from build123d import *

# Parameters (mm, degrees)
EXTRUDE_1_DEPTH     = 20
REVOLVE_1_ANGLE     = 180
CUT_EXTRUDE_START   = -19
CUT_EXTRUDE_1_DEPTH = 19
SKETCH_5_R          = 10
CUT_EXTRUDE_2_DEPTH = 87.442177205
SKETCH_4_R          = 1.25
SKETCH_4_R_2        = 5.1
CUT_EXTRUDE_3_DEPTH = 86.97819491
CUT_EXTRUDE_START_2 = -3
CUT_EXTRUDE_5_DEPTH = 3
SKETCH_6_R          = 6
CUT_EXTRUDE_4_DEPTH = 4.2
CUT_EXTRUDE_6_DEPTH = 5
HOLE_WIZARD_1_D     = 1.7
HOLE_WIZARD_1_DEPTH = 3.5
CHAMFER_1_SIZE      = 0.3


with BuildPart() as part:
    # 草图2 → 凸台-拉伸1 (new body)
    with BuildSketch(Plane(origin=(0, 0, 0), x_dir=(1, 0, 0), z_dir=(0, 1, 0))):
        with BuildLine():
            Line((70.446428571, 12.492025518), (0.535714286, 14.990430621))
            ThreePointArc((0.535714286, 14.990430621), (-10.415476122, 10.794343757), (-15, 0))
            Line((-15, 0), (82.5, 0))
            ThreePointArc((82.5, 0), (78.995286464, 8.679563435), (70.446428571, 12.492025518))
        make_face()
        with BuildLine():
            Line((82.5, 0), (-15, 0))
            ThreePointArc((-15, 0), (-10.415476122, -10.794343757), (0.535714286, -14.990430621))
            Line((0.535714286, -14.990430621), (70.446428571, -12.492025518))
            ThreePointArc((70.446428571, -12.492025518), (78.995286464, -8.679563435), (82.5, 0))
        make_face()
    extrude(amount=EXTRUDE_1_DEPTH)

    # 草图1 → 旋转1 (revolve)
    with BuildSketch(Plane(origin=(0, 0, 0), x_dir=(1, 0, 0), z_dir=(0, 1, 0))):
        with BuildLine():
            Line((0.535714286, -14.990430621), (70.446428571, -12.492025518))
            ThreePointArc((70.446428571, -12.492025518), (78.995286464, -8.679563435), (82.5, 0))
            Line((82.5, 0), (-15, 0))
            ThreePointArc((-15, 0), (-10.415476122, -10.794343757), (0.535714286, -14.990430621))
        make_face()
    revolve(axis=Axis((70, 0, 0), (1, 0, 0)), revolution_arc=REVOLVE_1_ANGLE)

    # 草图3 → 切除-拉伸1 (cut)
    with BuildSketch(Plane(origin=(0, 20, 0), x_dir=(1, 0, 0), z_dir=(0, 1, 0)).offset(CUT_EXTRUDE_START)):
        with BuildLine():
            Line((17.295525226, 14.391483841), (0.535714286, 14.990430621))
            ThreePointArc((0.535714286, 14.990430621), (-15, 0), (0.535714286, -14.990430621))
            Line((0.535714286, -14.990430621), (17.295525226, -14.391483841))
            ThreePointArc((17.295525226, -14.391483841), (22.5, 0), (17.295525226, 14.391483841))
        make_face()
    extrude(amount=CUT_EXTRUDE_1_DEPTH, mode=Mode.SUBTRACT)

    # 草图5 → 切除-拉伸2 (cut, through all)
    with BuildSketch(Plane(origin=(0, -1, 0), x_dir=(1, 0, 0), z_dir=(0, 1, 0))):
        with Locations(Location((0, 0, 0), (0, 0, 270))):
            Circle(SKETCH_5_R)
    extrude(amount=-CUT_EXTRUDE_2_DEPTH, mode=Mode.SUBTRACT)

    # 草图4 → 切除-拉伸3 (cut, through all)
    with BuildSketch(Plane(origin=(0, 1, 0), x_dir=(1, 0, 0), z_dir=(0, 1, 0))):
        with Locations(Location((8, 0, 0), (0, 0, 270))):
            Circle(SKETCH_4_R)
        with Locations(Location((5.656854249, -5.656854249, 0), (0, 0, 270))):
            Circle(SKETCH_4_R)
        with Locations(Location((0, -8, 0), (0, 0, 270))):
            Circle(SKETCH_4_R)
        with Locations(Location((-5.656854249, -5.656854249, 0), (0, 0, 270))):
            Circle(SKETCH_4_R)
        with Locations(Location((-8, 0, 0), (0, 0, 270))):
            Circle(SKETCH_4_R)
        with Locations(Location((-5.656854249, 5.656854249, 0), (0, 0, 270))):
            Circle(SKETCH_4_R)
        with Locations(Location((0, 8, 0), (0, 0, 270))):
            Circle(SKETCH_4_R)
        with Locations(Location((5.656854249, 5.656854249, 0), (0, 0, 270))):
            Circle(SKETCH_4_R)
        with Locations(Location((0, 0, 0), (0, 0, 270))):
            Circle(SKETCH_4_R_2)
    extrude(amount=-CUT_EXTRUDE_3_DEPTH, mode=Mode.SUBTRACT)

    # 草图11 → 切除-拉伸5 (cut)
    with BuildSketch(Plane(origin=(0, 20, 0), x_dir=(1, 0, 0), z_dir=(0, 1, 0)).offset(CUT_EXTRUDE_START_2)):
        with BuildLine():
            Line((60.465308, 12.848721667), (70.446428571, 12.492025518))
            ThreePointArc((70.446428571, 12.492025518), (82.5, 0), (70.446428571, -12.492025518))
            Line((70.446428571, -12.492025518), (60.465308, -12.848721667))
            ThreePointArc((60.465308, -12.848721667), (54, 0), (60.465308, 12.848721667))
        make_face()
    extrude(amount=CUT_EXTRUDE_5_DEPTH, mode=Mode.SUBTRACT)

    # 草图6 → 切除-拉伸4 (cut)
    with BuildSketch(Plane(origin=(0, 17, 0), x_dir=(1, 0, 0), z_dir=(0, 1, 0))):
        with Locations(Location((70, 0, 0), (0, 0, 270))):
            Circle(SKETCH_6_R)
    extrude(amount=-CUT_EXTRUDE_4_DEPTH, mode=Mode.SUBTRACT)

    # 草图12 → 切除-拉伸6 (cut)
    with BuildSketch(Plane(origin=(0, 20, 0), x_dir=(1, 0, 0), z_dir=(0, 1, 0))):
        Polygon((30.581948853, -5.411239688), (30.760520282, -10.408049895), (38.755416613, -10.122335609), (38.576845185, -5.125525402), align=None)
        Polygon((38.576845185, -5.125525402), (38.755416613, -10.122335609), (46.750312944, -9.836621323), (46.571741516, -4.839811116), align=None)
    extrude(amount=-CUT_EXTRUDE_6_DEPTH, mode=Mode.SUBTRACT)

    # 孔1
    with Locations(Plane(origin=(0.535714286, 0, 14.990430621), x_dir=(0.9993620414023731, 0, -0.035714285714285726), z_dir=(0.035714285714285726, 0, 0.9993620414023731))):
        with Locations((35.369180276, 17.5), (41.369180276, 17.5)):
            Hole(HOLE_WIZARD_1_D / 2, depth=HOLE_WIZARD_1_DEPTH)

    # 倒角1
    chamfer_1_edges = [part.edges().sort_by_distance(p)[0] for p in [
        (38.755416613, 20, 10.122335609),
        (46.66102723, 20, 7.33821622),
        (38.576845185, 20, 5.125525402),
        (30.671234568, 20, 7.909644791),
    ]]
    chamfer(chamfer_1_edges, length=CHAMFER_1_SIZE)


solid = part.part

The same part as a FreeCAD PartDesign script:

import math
import FreeCAD as App
import Part
import Sketcher

V = App.Vector
Q = App.Units.Quantity


def edges_at(feature, points):
    """Names of the edges that pass closest to the given points."""
    edges = feature.Shape.Edges
    near = lambda p: min(range(len(edges)), key=lambda i: edges[i].distToShape(Part.Vertex(*p))[0])
    return sorted({f"Edge{near(p) + 1}" for p in points})

doc = App.newDocument("Part")
body = doc.addObject("PartDesign::Body", "Body")

# Sketch on XZ plane
sketch1 = doc.addObject("Sketcher::SketchObject", "Sketch")
body.addObject(sketch1)
sketch1.AttachmentSupport = (doc.XZ_Plane, [""])
sketch1.MapMode = "FlatFace"
sketch1.addGeometry([
    Part.LineSegment(V(70, -12, 0), V(1, -15, 0)),  # 0
    Part.ArcOfCircle(Part.Circle(V(0, 0, 0), V(0, 0, 1), 15), math.radians(-180), math.radians(-88)),  # 1
    Part.ArcOfCircle(Part.Circle(V(0, 0, 0), V(0, 0, 1), 15), math.radians(88), math.radians(180)),  # 2
    Part.LineSegment(V(1, 15, 0), V(70, 12, 0)),  # 3
    Part.ArcOfCircle(Part.Circle(V(70, 0, 0), V(0, 0, 1), 13), math.radians(0), math.radians(88)),  # 4
    Part.ArcOfCircle(Part.Circle(V(70, 0, 0), V(0, 0, 1), 13), math.radians(-88), math.radians(0)),  # 5
], False)
sketch1.addConstraint([
    Sketcher.Constraint("Tangent", 0, 2, 1, 2),
    Sketcher.Constraint("Tangent", 1, 1, 2, 2),
    Sketcher.Constraint("Tangent", 2, 1, 3, 1),
    Sketcher.Constraint("Tangent", 3, 2, 4, 2),
    Sketcher.Constraint("Tangent", 4, 1, 5, 2),
    Sketcher.Constraint("Tangent", 5, 1, 0, 1),
    Sketcher.Constraint("Coincident", 1, 3, -1, 1),
    Sketcher.Constraint("Equal", 1, 2),
    Sketcher.Constraint("Equal", 4, 5),
    Sketcher.Constraint("PointOnObject", 4, 3, -1),
    Sketcher.Constraint("PointOnObject", 1, 1, -1),
    Sketcher.Constraint("PointOnObject", 4, 1, -1),
    Sketcher.Constraint("Radius", 1, Q("15 mm")),
    Sketcher.Constraint("Radius", 4, Q("12.5 mm")),
    Sketcher.Constraint("DistanceX", -1, 1, 4, 3, Q("70 mm")),
])
pad1 = doc.addObject("PartDesign::Pad", "Pad")
body.addObject(pad1)
pad1.Profile = sketch1
pad1.Length = 20
pad1.Reversed = True

# Sketch on XZ plane
sketch2 = doc.addObject("Sketcher::SketchObject", "Sketch001")
body.addObject(sketch2)
sketch2.AttachmentSupport = (doc.XZ_Plane, [""])
sketch2.MapMode = "FlatFace"
sketch2.addGeometry([
    Part.LineSegment(V(1, 15, 0), V(70, 12, 0)),
    Part.ArcOfCircle(Part.Circle(V(70, 0, 0), V(0, 0, 1), 13), math.radians(0), math.radians(88)),
    Part.LineSegment(V(82, 0, 0), V(-15, 0, 0)),
    Part.ArcOfCircle(Part.Circle(V(0, 0, 0), V(0, 0, 1), 15), math.radians(88), math.radians(180)),
], False)
sketch2.addConstraint([
    Sketcher.Constraint("Tangent", 0, 2, 1, 2),
    Sketcher.Constraint("Coincident", 1, 1, 2, 1),
    Sketcher.Constraint("Coincident", 2, 2, 3, 2),
    Sketcher.Constraint("Tangent", 3, 1, 0, 1),
    Sketcher.Constraint("Horizontal", 2),
    Sketcher.Constraint("Coincident", 3, 3, -1, 1),
    Sketcher.Constraint("PointOnObject", 1, 3, -1),
    Sketcher.Constraint("PointOnObject", 1, 1, -1),
    Sketcher.Constraint("Radius", 3, Q("15 mm")),
    Sketcher.Constraint("Radius", 1, Q("12.5 mm")),
    Sketcher.Constraint("DistanceX", 2, 2, 2, 1, Q("97.5 mm")),
])
revolution = doc.addObject("PartDesign::Revolution", "Revolution")
body.addObject(revolution)
revolution.Profile = sketch2
revolution.ReferenceAxis = (sketch2, ["H_Axis"])
revolution.Angle = 180

# Sketch on XZ plane
sketch3 = doc.addObject("Sketcher::SketchObject", "Sketch002")
body.addObject(sketch3)
sketch3.AttachmentSupport = (doc.XZ_Plane, [""])
sketch3.MapMode = "FlatFace"
sketch3.AttachmentOffset = App.Placement(V(0, 0, -1), App.Rotation())
sketch3.addGeometry([
    Part.LineSegment(V(17, -14, 0), V(1, -15, 0)),
    Part.ArcOfCircle(Part.Circle(V(0, 0, 0), V(0, 0, 1), 15), math.radians(88), math.radians(272)),
    Part.LineSegment(V(1, 15, 0), V(17, 14, 0)),
    Part.ArcOfCircle(Part.Circle(V(0, 0, 0), V(0, 0, 1), 22), math.radians(-40), math.radians(40)),
], False)
sketch3.addConstraint([
    Sketcher.Constraint("Tangent", 0, 2, 1, 2),
    Sketcher.Constraint("Tangent", 1, 1, 2, 1),
    Sketcher.Constraint("Coincident", 2, 2, 3, 2),
    Sketcher.Constraint("Coincident", 3, 1, 0, 1),
    Sketcher.Constraint("Coincident", 1, 3, -1, 1),
    Sketcher.Constraint("Coincident", 3, 3, -1, 1),
    Sketcher.Constraint("Vertical", 0, 2, 1, 1),
    Sketcher.Constraint("Radius", 1, Q("15 mm")),
    Sketcher.Constraint("Radius", 3, Q("22.5 mm")),
    Sketcher.Constraint("DistanceY", 0, 2, -1, 1, Q("14.990431 mm")),
])
pocket1 = doc.addObject("PartDesign::Pocket", "Pocket")
body.addObject(pocket1)
pocket1.Profile = sketch3
pocket1.Length = 19

# Sketch on XZ plane
sketch4 = doc.addObject("Sketcher::SketchObject", "Sketch003")
body.addObject(sketch4)
sketch4.AttachmentSupport = (doc.XZ_Plane, [""])
sketch4.MapMode = "FlatFace"
sketch4.AttachmentOffset = App.Placement(V(0, 0, 1), App.Rotation())
sketch4.addGeometry(Part.Circle(V(0, 0, 0), V(0, 0, 1), 10), False)
sketch4.addConstraint([
    Sketcher.Constraint("Coincident", 0, 3, -1, 1),
    Sketcher.Constraint("Diameter", 0, Q("20 mm")),
])
pocket2 = doc.addObject("PartDesign::Pocket", "Pocket001")
body.addObject(pocket2)
pocket2.Profile = sketch4
pocket2.Type = "ThroughAll"
pocket2.Reversed = True

# Sketch on XZ plane
sketch5 = doc.addObject("Sketcher::SketchObject", "Sketch004")
body.addObject(sketch5)
sketch5.AttachmentSupport = (doc.XZ_Plane, [""])
sketch5.MapMode = "FlatFace"
sketch5.AttachmentOffset = App.Placement(V(0, 0, -1), App.Rotation())
sketch5.addGeometry([
    Part.Circle(V(8, 0, 0), V(0, 0, 1), 1.2),  # 0
    Part.Circle(V(5.7, 5.7, 0), V(0, 0, 1), 1.2),  # 1
    Part.Circle(V(0, 8, 0), V(0, 0, 1), 1.2),  # 2
    Part.Circle(V(-5.7, 5.7, 0), V(0, 0, 1), 1.2),  # 3
    Part.Circle(V(-8, 0, 0), V(0, 0, 1), 1.2),  # 4
    Part.Circle(V(-5.7, -5.7, 0), V(0, 0, 1), 1.2),  # 5
    Part.Circle(V(0, -8, 0), V(0, 0, 1), 1.2),  # 6
    Part.Circle(V(5.7, -5.7, 0), V(0, 0, 1), 1.2),  # 7
    Part.Circle(V(0, 0, 0), V(0, 0, 1), 5.1),  # 8
], False)
sketch5.addConstraint([
    Sketcher.Constraint("Coincident", 8, 3, -1, 1),
    Sketcher.Constraint("Equal", 0, 1),
    Sketcher.Constraint("Equal", 1, 2),
    Sketcher.Constraint("Equal", 2, 3),
    Sketcher.Constraint("Equal", 3, 4),
    Sketcher.Constraint("Equal", 4, 5),
    Sketcher.Constraint("Equal", 5, 6),
    Sketcher.Constraint("Equal", 6, 7),
    Sketcher.Constraint("Symmetric", 0, 3, 4, 3, -1, 1),
    Sketcher.Constraint("Symmetric", 1, 3, 5, 3, -1, 1),
    Sketcher.Constraint("Symmetric", 2, 3, 6, 3, -1, 1),
    Sketcher.Constraint("Symmetric", 3, 3, 7, 3, -1, 1),
    Sketcher.Constraint("Symmetric", 1, 3, 3, 3, -2),
    Sketcher.Constraint("PointOnObject", 0, 3, -1),
    Sketcher.Constraint("PointOnObject", 2, 3, -2),
    Sketcher.Constraint("Diameter", 0, Q("2.5 mm")),
    Sketcher.Constraint("Diameter", 8, Q("10.2 mm")),
    Sketcher.Constraint("DistanceX", -1, 1, 0, 3, Q("8 mm")),
    Sketcher.Constraint("DistanceY", -1, 1, 2, 3, Q("8 mm")),
    Sketcher.Constraint("DistanceX", 3, 3, 1, 3, Q("11.313708 mm")),
    Sketcher.Constraint("DistanceY", 5, 3, 3, 3, Q("11.313708 mm")),
])
pocket3 = doc.addObject("PartDesign::Pocket", "Pocket002")
body.addObject(pocket3)
pocket3.Profile = sketch5
pocket3.Type = "ThroughAll"
pocket3.Reversed = True

# Sketch on XZ plane
sketch6 = doc.addObject("Sketcher::SketchObject", "Sketch005")
body.addObject(sketch6)
sketch6.AttachmentSupport = (doc.XZ_Plane, [""])
sketch6.MapMode = "FlatFace"
sketch6.AttachmentOffset = App.Placement(V(0, 0, -17), App.Rotation())
sketch6.addGeometry([
    Part.LineSegment(V(70, -12, 0), V(60, -13, 0)),
    Part.ArcOfCircle(Part.Circle(V(70, 0, 0), V(0, 0, 1), 16), math.radians(127), math.radians(233)),
    Part.LineSegment(V(60, 13, 0), V(70, 12, 0)),
    Part.ArcOfCircle(Part.Circle(V(70, 0, 0), V(0, 0, 1), 12), math.radians(-88), math.radians(88)),
], False)
sketch6.addConstraint([
    Sketcher.Constraint("Coincident", 0, 2, 1, 2),
    Sketcher.Constraint("Coincident", 1, 1, 2, 1),
    Sketcher.Constraint("Tangent", 2, 2, 3, 2),
    Sketcher.Constraint("Tangent", 3, 1, 0, 1),
    Sketcher.Constraint("Coincident", 3, 3, 1, 3),
    Sketcher.Constraint("Symmetric", 0, 2, 1, 1, -1),
    Sketcher.Constraint("Radius", 1, Q("16 mm")),
    Sketcher.Constraint("Radius", 3, Q("12.5 mm")),
    Sketcher.Constraint("DistanceX", -1, 1, 1, 3, Q("70 mm")),
    Sketcher.Constraint("DistanceY", 0, 2, -1, 1, Q("12.848722 mm")),
])
pocket4 = doc.addObject("PartDesign::Pocket", "Pocket003")
body.addObject(pocket4)
pocket4.Profile = sketch6
pocket4.Length = 3

# Sketch on XZ plane
sketch7 = doc.addObject("Sketcher::SketchObject", "Sketch006")
body.addObject(sketch7)
sketch7.AttachmentSupport = (doc.XZ_Plane, [""])
sketch7.MapMode = "FlatFace"
sketch7.AttachmentOffset = App.Placement(V(0, 0, -17), App.Rotation())
sketch7.addGeometry(Part.Circle(V(70, 0, 0), V(0, 0, 1), 6), False)
sketch7.addConstraint([
    Sketcher.Constraint("PointOnObject", 0, 3, -1),
    Sketcher.Constraint("Diameter", 0, Q("12 mm")),
    Sketcher.Constraint("DistanceX", -1, 1, 0, 3, Q("70 mm")),
])
pocket5 = doc.addObject("PartDesign::Pocket", "Pocket004")
body.addObject(pocket5)
pocket5.Profile = sketch7
pocket5.Length = 4.2
pocket5.Reversed = True

# Sketch on XZ plane
sketch8 = doc.addObject("Sketcher::SketchObject", "Sketch007")
body.addObject(sketch8)
sketch8.AttachmentSupport = (doc.XZ_Plane, [""])
sketch8.MapMode = "FlatFace"
sketch8.AttachmentOffset = App.Placement(V(0, 0, -20), App.Rotation())
sketch8.addGeometry([
    Part.LineSegment(V(30.6, 5.4, 0), V(30.8, 10.4, 0)),  # 0
    Part.LineSegment(V(30.8, 10.4, 0), V(46.8, 9.8, 0)),  # 1
    Part.LineSegment(V(46.8, 9.8, 0), V(46.6, 4.8, 0)),  # 2
    Part.LineSegment(V(46.6, 4.8, 0), V(38.6, 5.1, 0)),  # 3
    Part.LineSegment(V(38.6, 5.1, 0), V(30.6, 5.4, 0)),  # 4
], False)
sketch8.addConstraint([
    Sketcher.Constraint("Coincident", 0, 2, 1, 1),
    Sketcher.Constraint("Coincident", 1, 2, 2, 1),
    Sketcher.Constraint("Coincident", 2, 2, 3, 1),
    Sketcher.Constraint("Coincident", 3, 2, 4, 1),
    Sketcher.Constraint("Coincident", 4, 2, 0, 1),
    Sketcher.Constraint("Perpendicular", 0, 1),
    Sketcher.Constraint("Perpendicular", 1, 2),
    Sketcher.Constraint("Perpendicular", 2, 3),
    Sketcher.Constraint("Parallel", 3, 4),
    Sketcher.Constraint("Equal", 3, 4),
    Sketcher.Constraint("Distance", 0, Q("5 mm")),
    Sketcher.Constraint("Distance", 1, Q("16 mm")),
    Sketcher.Constraint("DistanceX", -1, 1, 0, 2, Q("30.76052 mm")),
    Sketcher.Constraint("DistanceY", -1, 1, 0, 2, Q("10.40805 mm")),
    Sketcher.Constraint("DistanceY", -1, 1, 1, 2, Q("9.836621 mm")),
])
pocket6 = doc.addObject("PartDesign::Pocket", "Pocket005")
body.addObject(pocket6)
pocket6.Profile = sketch8
pocket6.Length = 5
pocket6.Reversed = True

# Sketch on an angled plane
sketch9 = doc.addObject("Sketcher::SketchObject", "Sketch008")
body.addObject(sketch9)
sketch9.Placement = App.Placement(V(0.535714, 0, 14.990431), App.Rotation(V(0.999362041, 0, -0.035714286), V(0, 0.999999999, 0), V(0.035714286, 0, 0.999362041), "ZXY"))
sketch9.addGeometry([
    Part.Circle(V(35.4, 17.5, 0), V(0, 0, 1), 0.8),
    Part.Circle(V(41.4, 17.5, 0), V(0, 0, 1), 0.8),
], False)
sketch9.addConstraint([
    Sketcher.Constraint("Equal", 0, 1),
    Sketcher.Constraint("Horizontal", 0, 3, 1, 3),
    Sketcher.Constraint("Diameter", 0, Q("1.7 mm")),
    Sketcher.Constraint("DistanceX", 0, 3, 1, 3, Q("6 mm")),
    Sketcher.Constraint("DistanceY", -1, 1, 0, 3, Q("17.5 mm")),
    Sketcher.Constraint("DistanceX", -1, 1, 0, 3, Q("35.36918 mm")),
])
doc.recompute()
hole = doc.addObject("PartDesign::Hole", "Hole")
body.addObject(hole)
hole.Profile = sketch9
hole.ThreadType = "None"
hole.Diameter = 1.7
hole.DepthType = "Dimension"
hole.Depth = 3.5
hole.DrillPoint = "Flat"
doc.recompute()

chamfer = doc.addObject("PartDesign::Chamfer", "Chamfer")
body.addObject(chamfer)
chamfer.Base = (hole, edges_at(hole, [
    (38.755, 20, 10.122),
    (46.661, 20, 7.338),
    (42.574, 20, 4.983),
    (30.671, 20, 7.91),
]))
chamfer.Size = 0.3

doc.recompute()
